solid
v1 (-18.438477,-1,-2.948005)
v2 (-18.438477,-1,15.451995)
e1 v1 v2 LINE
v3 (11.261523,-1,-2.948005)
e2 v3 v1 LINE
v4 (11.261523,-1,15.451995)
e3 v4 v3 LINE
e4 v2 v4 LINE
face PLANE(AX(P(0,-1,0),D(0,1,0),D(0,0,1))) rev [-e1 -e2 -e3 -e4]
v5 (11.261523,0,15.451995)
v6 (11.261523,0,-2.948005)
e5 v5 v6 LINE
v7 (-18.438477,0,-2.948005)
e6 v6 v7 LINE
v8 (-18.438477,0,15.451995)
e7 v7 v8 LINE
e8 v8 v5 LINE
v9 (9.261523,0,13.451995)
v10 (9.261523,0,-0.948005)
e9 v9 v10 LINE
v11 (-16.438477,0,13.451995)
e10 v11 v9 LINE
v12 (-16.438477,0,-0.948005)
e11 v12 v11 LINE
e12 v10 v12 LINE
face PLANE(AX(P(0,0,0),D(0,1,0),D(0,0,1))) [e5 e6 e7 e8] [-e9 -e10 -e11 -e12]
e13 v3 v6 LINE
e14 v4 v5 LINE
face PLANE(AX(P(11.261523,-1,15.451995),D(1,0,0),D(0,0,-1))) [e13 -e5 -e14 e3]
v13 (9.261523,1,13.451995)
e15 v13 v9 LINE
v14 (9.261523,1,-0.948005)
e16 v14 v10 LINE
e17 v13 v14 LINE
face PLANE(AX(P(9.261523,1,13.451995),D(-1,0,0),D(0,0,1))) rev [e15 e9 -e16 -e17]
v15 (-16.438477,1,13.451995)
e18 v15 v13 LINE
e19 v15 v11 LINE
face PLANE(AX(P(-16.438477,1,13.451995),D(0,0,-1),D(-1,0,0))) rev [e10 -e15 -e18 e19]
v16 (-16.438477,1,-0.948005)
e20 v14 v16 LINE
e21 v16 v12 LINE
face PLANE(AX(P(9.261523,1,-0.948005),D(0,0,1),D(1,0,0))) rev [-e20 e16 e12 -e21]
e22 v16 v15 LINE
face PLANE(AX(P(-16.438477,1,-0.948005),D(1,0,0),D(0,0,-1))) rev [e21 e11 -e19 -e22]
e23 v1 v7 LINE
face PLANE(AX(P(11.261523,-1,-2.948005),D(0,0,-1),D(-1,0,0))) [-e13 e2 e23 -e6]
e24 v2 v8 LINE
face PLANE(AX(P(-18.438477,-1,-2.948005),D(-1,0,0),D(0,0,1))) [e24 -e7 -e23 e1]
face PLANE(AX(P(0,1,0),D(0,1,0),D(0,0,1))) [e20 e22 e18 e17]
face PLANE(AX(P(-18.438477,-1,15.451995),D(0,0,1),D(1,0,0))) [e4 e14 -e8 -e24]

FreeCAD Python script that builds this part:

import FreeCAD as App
import Part
import Sketcher

V = App.Vector
Q = App.Units.Quantity


def add_polygon(sketch, points):
    """Adds a closed chain of lines whose ends are joined by coincident constraints."""
    first, n = sketch.GeometryCount, len(points)
    for a, b in zip(points, points[1:] + points[:1]):
        sketch.addGeometry(Part.LineSegment(App.Vector(*a, 0), App.Vector(*b, 0)), False)
    for i in range(n):
        sketch.addConstraint(Sketcher.Constraint("Coincident", first + i, 2, first + (i + 1) % n, 1))

doc = App.newDocument("Part")
params = doc.addObject("Spreadsheet::Sheet", "Params")
for row, (alias, value) in enumerate([
    ("sketch1_width", "29.7 mm"),
    ("sketch1_height", "18.4 mm"),
    ("pad1_length", "1 mm"),
    ("sketch2_width", "25.7 mm"),
    ("sketch2_height", "14.4 mm"),
    ("pad2_length", "1 mm"),
], start=1):
    params.set(f"A{row}", alias)
    params.set(f"B{row}", "=" + value)
    params.setAlias(f"B{row}", alias)

body = doc.addObject("PartDesign::Body", "Body")

# Sketch on XZ plane
sketch1 = body.newObject("Sketcher::SketchObject", "Sketch")
sketch1.AttachmentSupport = (doc.getObject("XZ_Plane"), [""])
sketch1.MapMode = "FlatFace"
add_polygon(sketch1, [(-18, -3), (-18, 15), (11, 15), (11, -3)])  # lines 0-3
sketch1.addConstraint([
    Sketcher.Constraint("Vertical", 0),
    Sketcher.Constraint("Horizontal", 1),
    Sketcher.Constraint("Vertical", 2),
    Sketcher.Constraint("Horizontal", 3),
    Sketcher.Constraint("DistanceX", 1, 1, 1, 2, Q("29.7 mm")),
    Sketcher.Constraint("DistanceY", 0, 1, 0, 2, Q("18.4 mm")),
    Sketcher.Constraint("DistanceX", 0, 2, -1, 1, Q("18.438477 mm")),
    Sketcher.Constraint("DistanceY", -1, 1, 0, 2, Q("15.451995 mm")),
])
sketch1.setExpression("Constraints[8]", "Params.sketch1_width")
sketch1.setExpression("Constraints[9]", "Params.sketch1_height")
pad1 = body.newObject("PartDesign::Pad", "Pad")
pad1.Profile = sketch1
pad1.setExpression("Length", "Params.pad1_length")

# Sketch on XZ plane
sketch2 = body.newObject("Sketcher::SketchObject", "Sketch001")
sketch2.AttachmentSupport = (doc.getObject("XZ_Plane"), [""])
sketch2.MapMode = "FlatFace"
add_polygon(sketch2, [(-16, -1), (-16, 13), (9, 13), (9, -1)])  # lines 0-3
sketch2.addConstraint([
    Sketcher.Constraint("Vertical", 0),
    Sketcher.Constraint("Horizontal", 1),
    Sketcher.Constraint("Vertical", 2),
    Sketcher.Constraint("Horizontal", 3),
    Sketcher.Constraint("DistanceX", 1, 1, 1, 2, Q("25.7 mm")),
    Sketcher.Constraint("DistanceY", 0, 1, 0, 2, Q("14.4 mm")),
    Sketcher.Constraint("DistanceX", 0, 2, -1, 1, Q("16.438477 mm")),
    Sketcher.Constraint("DistanceY", -1, 1, 0, 2, Q("13.451995 mm")),
])
sketch2.setExpression("Constraints[8]", "Params.sketch2_width")
sketch2.setExpression("Constraints[9]", "Params.sketch2_height")
pad2 = body.newObject("PartDesign::Pad", "Pad001")
pad2.Profile = sketch2
pad2.setExpression("Length", "Params.pad2_length")
pad2.Reversed = True

doc.recompute()
